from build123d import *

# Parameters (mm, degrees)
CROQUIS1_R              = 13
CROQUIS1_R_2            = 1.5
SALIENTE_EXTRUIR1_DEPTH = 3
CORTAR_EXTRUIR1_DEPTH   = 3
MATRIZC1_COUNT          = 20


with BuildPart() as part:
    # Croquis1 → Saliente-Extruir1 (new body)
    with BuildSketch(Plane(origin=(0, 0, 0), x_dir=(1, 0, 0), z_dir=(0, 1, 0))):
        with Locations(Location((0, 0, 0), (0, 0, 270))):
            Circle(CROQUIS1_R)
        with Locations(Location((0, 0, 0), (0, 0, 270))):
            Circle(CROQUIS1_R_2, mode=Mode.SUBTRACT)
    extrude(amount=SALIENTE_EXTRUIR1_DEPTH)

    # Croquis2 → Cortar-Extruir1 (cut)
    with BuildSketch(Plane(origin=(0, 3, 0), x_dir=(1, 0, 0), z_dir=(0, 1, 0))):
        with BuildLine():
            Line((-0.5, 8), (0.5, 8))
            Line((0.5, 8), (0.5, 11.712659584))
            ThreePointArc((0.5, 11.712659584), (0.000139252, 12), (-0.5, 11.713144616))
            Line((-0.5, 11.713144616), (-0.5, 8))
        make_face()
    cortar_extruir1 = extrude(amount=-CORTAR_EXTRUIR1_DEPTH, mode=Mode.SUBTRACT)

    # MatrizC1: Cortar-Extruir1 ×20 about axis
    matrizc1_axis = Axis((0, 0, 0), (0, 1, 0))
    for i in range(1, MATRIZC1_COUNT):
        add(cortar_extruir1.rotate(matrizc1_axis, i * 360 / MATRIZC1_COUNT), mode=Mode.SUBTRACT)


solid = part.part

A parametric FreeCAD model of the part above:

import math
import FreeCAD as App
import Part
import Sketcher

doc = App.newDocument("Part")
body = doc.addObject("PartDesign::Body", "Body")

sketch1 = body.newObject("Sketcher::SketchObject", "Sketch")
sketch1.AttachmentSupport = (doc.getObject("XZ_Plane"), [""])
sketch1.MapMode = "FlatFace"
sketch1.addGeometry([
    Part.Circle(App.Vector(0, 0, 0), App.Vector(0, 0, 1), 13),
    Part.Circle(App.Vector(0, 0, 0), App.Vector(0, 0, 1), 1.5),
], False)
sketch1.addConstraint([
    Sketcher.Constraint("Coincident", 0, 3, -1, 1),
    Sketcher.Constraint("Coincident", 1, 3, -1, 1),
    Sketcher.Constraint("Diameter", 0, 26.0),
    Sketcher.Constraint("Diameter", 1, 3.0),
])
pad1 = body.newObject("PartDesign::Pad", "Pad")
pad1.Profile = sketch1
pad1.Length = 3
pad1.Reversed = True

sketch2 = body.newObject("Sketcher::SketchObject", "Sketch001")
sketch2.AttachmentSupport = (doc.getObject("XZ_Plane"), [""])
sketch2.MapMode = "FlatFace"
sketch2.AttachmentOffset = App.Placement(App.Vector(0, 0, -3), App.Rotation())
sketch2.addGeometry([
    Part.LineSegment(App.Vector(-0.5, -8, 0), App.Vector(0.5, -8, 0)),
    Part.LineSegment(App.Vector(0.5, -8, 0), App.Vector(0.5, -11.7, 0)),
    Part.ArcOfCircle(Part.Circle(App.Vector(0, -11.4, 0), App.Vector(0, 0, 1), 0.6), math.radians(-150), math.radians(-30)),
    Part.LineSegment(App.Vector(-0.5, -11.7, 0), App.Vector(-0.5, -8, 0)),
], False)
sketch2.addConstraint([
    Sketcher.Constraint("Coincident", 0, 2, 1, 1),
    Sketcher.Constraint("Coincident", 1, 2, 2, 2),
    Sketcher.Constraint("Coincident", 2, 1, 3, 1),
    Sketcher.Constraint("Coincident", 3, 2, 0, 1),
    Sketcher.Constraint("Horizontal", 0),
    Sketcher.Constraint("Vertical", 1),
    Sketcher.Constraint("Vertical", 3),
    Sketcher.Constraint("DistanceX", 0, 1, 0, 2, 1.0),
    Sketcher.Constraint("DistanceY", 0, 2, -1, 1, 8.0),
    Sketcher.Constraint("DistanceX", -1, 1, 0, 2, 0.5),
    Sketcher.Constraint("Radius", 2, 0.578941),
    Sketcher.Constraint("DistanceY", 1, 2, 1, 1, 3.71266),
    Sketcher.Constraint("DistanceY", 1, 2, 2, 3, 0.2916),
])
pocket1 = body.newObject("PartDesign::Pocket", "Pocket")
pocket1.Profile = sketch2
pocket1.Length = 3
pocket1.Reversed = True
doc.recompute()

polarpattern = body.newObject("PartDesign::PolarPattern", "PolarPattern")
polarpattern.Originals = [pocket1]
polarpattern.Axis = (doc.getObject("Y_Axis"), [""])
polarpattern.Angle = 360
polarpattern.Occurrences = 20
body.Tip = polarpattern

doc.recompute()
